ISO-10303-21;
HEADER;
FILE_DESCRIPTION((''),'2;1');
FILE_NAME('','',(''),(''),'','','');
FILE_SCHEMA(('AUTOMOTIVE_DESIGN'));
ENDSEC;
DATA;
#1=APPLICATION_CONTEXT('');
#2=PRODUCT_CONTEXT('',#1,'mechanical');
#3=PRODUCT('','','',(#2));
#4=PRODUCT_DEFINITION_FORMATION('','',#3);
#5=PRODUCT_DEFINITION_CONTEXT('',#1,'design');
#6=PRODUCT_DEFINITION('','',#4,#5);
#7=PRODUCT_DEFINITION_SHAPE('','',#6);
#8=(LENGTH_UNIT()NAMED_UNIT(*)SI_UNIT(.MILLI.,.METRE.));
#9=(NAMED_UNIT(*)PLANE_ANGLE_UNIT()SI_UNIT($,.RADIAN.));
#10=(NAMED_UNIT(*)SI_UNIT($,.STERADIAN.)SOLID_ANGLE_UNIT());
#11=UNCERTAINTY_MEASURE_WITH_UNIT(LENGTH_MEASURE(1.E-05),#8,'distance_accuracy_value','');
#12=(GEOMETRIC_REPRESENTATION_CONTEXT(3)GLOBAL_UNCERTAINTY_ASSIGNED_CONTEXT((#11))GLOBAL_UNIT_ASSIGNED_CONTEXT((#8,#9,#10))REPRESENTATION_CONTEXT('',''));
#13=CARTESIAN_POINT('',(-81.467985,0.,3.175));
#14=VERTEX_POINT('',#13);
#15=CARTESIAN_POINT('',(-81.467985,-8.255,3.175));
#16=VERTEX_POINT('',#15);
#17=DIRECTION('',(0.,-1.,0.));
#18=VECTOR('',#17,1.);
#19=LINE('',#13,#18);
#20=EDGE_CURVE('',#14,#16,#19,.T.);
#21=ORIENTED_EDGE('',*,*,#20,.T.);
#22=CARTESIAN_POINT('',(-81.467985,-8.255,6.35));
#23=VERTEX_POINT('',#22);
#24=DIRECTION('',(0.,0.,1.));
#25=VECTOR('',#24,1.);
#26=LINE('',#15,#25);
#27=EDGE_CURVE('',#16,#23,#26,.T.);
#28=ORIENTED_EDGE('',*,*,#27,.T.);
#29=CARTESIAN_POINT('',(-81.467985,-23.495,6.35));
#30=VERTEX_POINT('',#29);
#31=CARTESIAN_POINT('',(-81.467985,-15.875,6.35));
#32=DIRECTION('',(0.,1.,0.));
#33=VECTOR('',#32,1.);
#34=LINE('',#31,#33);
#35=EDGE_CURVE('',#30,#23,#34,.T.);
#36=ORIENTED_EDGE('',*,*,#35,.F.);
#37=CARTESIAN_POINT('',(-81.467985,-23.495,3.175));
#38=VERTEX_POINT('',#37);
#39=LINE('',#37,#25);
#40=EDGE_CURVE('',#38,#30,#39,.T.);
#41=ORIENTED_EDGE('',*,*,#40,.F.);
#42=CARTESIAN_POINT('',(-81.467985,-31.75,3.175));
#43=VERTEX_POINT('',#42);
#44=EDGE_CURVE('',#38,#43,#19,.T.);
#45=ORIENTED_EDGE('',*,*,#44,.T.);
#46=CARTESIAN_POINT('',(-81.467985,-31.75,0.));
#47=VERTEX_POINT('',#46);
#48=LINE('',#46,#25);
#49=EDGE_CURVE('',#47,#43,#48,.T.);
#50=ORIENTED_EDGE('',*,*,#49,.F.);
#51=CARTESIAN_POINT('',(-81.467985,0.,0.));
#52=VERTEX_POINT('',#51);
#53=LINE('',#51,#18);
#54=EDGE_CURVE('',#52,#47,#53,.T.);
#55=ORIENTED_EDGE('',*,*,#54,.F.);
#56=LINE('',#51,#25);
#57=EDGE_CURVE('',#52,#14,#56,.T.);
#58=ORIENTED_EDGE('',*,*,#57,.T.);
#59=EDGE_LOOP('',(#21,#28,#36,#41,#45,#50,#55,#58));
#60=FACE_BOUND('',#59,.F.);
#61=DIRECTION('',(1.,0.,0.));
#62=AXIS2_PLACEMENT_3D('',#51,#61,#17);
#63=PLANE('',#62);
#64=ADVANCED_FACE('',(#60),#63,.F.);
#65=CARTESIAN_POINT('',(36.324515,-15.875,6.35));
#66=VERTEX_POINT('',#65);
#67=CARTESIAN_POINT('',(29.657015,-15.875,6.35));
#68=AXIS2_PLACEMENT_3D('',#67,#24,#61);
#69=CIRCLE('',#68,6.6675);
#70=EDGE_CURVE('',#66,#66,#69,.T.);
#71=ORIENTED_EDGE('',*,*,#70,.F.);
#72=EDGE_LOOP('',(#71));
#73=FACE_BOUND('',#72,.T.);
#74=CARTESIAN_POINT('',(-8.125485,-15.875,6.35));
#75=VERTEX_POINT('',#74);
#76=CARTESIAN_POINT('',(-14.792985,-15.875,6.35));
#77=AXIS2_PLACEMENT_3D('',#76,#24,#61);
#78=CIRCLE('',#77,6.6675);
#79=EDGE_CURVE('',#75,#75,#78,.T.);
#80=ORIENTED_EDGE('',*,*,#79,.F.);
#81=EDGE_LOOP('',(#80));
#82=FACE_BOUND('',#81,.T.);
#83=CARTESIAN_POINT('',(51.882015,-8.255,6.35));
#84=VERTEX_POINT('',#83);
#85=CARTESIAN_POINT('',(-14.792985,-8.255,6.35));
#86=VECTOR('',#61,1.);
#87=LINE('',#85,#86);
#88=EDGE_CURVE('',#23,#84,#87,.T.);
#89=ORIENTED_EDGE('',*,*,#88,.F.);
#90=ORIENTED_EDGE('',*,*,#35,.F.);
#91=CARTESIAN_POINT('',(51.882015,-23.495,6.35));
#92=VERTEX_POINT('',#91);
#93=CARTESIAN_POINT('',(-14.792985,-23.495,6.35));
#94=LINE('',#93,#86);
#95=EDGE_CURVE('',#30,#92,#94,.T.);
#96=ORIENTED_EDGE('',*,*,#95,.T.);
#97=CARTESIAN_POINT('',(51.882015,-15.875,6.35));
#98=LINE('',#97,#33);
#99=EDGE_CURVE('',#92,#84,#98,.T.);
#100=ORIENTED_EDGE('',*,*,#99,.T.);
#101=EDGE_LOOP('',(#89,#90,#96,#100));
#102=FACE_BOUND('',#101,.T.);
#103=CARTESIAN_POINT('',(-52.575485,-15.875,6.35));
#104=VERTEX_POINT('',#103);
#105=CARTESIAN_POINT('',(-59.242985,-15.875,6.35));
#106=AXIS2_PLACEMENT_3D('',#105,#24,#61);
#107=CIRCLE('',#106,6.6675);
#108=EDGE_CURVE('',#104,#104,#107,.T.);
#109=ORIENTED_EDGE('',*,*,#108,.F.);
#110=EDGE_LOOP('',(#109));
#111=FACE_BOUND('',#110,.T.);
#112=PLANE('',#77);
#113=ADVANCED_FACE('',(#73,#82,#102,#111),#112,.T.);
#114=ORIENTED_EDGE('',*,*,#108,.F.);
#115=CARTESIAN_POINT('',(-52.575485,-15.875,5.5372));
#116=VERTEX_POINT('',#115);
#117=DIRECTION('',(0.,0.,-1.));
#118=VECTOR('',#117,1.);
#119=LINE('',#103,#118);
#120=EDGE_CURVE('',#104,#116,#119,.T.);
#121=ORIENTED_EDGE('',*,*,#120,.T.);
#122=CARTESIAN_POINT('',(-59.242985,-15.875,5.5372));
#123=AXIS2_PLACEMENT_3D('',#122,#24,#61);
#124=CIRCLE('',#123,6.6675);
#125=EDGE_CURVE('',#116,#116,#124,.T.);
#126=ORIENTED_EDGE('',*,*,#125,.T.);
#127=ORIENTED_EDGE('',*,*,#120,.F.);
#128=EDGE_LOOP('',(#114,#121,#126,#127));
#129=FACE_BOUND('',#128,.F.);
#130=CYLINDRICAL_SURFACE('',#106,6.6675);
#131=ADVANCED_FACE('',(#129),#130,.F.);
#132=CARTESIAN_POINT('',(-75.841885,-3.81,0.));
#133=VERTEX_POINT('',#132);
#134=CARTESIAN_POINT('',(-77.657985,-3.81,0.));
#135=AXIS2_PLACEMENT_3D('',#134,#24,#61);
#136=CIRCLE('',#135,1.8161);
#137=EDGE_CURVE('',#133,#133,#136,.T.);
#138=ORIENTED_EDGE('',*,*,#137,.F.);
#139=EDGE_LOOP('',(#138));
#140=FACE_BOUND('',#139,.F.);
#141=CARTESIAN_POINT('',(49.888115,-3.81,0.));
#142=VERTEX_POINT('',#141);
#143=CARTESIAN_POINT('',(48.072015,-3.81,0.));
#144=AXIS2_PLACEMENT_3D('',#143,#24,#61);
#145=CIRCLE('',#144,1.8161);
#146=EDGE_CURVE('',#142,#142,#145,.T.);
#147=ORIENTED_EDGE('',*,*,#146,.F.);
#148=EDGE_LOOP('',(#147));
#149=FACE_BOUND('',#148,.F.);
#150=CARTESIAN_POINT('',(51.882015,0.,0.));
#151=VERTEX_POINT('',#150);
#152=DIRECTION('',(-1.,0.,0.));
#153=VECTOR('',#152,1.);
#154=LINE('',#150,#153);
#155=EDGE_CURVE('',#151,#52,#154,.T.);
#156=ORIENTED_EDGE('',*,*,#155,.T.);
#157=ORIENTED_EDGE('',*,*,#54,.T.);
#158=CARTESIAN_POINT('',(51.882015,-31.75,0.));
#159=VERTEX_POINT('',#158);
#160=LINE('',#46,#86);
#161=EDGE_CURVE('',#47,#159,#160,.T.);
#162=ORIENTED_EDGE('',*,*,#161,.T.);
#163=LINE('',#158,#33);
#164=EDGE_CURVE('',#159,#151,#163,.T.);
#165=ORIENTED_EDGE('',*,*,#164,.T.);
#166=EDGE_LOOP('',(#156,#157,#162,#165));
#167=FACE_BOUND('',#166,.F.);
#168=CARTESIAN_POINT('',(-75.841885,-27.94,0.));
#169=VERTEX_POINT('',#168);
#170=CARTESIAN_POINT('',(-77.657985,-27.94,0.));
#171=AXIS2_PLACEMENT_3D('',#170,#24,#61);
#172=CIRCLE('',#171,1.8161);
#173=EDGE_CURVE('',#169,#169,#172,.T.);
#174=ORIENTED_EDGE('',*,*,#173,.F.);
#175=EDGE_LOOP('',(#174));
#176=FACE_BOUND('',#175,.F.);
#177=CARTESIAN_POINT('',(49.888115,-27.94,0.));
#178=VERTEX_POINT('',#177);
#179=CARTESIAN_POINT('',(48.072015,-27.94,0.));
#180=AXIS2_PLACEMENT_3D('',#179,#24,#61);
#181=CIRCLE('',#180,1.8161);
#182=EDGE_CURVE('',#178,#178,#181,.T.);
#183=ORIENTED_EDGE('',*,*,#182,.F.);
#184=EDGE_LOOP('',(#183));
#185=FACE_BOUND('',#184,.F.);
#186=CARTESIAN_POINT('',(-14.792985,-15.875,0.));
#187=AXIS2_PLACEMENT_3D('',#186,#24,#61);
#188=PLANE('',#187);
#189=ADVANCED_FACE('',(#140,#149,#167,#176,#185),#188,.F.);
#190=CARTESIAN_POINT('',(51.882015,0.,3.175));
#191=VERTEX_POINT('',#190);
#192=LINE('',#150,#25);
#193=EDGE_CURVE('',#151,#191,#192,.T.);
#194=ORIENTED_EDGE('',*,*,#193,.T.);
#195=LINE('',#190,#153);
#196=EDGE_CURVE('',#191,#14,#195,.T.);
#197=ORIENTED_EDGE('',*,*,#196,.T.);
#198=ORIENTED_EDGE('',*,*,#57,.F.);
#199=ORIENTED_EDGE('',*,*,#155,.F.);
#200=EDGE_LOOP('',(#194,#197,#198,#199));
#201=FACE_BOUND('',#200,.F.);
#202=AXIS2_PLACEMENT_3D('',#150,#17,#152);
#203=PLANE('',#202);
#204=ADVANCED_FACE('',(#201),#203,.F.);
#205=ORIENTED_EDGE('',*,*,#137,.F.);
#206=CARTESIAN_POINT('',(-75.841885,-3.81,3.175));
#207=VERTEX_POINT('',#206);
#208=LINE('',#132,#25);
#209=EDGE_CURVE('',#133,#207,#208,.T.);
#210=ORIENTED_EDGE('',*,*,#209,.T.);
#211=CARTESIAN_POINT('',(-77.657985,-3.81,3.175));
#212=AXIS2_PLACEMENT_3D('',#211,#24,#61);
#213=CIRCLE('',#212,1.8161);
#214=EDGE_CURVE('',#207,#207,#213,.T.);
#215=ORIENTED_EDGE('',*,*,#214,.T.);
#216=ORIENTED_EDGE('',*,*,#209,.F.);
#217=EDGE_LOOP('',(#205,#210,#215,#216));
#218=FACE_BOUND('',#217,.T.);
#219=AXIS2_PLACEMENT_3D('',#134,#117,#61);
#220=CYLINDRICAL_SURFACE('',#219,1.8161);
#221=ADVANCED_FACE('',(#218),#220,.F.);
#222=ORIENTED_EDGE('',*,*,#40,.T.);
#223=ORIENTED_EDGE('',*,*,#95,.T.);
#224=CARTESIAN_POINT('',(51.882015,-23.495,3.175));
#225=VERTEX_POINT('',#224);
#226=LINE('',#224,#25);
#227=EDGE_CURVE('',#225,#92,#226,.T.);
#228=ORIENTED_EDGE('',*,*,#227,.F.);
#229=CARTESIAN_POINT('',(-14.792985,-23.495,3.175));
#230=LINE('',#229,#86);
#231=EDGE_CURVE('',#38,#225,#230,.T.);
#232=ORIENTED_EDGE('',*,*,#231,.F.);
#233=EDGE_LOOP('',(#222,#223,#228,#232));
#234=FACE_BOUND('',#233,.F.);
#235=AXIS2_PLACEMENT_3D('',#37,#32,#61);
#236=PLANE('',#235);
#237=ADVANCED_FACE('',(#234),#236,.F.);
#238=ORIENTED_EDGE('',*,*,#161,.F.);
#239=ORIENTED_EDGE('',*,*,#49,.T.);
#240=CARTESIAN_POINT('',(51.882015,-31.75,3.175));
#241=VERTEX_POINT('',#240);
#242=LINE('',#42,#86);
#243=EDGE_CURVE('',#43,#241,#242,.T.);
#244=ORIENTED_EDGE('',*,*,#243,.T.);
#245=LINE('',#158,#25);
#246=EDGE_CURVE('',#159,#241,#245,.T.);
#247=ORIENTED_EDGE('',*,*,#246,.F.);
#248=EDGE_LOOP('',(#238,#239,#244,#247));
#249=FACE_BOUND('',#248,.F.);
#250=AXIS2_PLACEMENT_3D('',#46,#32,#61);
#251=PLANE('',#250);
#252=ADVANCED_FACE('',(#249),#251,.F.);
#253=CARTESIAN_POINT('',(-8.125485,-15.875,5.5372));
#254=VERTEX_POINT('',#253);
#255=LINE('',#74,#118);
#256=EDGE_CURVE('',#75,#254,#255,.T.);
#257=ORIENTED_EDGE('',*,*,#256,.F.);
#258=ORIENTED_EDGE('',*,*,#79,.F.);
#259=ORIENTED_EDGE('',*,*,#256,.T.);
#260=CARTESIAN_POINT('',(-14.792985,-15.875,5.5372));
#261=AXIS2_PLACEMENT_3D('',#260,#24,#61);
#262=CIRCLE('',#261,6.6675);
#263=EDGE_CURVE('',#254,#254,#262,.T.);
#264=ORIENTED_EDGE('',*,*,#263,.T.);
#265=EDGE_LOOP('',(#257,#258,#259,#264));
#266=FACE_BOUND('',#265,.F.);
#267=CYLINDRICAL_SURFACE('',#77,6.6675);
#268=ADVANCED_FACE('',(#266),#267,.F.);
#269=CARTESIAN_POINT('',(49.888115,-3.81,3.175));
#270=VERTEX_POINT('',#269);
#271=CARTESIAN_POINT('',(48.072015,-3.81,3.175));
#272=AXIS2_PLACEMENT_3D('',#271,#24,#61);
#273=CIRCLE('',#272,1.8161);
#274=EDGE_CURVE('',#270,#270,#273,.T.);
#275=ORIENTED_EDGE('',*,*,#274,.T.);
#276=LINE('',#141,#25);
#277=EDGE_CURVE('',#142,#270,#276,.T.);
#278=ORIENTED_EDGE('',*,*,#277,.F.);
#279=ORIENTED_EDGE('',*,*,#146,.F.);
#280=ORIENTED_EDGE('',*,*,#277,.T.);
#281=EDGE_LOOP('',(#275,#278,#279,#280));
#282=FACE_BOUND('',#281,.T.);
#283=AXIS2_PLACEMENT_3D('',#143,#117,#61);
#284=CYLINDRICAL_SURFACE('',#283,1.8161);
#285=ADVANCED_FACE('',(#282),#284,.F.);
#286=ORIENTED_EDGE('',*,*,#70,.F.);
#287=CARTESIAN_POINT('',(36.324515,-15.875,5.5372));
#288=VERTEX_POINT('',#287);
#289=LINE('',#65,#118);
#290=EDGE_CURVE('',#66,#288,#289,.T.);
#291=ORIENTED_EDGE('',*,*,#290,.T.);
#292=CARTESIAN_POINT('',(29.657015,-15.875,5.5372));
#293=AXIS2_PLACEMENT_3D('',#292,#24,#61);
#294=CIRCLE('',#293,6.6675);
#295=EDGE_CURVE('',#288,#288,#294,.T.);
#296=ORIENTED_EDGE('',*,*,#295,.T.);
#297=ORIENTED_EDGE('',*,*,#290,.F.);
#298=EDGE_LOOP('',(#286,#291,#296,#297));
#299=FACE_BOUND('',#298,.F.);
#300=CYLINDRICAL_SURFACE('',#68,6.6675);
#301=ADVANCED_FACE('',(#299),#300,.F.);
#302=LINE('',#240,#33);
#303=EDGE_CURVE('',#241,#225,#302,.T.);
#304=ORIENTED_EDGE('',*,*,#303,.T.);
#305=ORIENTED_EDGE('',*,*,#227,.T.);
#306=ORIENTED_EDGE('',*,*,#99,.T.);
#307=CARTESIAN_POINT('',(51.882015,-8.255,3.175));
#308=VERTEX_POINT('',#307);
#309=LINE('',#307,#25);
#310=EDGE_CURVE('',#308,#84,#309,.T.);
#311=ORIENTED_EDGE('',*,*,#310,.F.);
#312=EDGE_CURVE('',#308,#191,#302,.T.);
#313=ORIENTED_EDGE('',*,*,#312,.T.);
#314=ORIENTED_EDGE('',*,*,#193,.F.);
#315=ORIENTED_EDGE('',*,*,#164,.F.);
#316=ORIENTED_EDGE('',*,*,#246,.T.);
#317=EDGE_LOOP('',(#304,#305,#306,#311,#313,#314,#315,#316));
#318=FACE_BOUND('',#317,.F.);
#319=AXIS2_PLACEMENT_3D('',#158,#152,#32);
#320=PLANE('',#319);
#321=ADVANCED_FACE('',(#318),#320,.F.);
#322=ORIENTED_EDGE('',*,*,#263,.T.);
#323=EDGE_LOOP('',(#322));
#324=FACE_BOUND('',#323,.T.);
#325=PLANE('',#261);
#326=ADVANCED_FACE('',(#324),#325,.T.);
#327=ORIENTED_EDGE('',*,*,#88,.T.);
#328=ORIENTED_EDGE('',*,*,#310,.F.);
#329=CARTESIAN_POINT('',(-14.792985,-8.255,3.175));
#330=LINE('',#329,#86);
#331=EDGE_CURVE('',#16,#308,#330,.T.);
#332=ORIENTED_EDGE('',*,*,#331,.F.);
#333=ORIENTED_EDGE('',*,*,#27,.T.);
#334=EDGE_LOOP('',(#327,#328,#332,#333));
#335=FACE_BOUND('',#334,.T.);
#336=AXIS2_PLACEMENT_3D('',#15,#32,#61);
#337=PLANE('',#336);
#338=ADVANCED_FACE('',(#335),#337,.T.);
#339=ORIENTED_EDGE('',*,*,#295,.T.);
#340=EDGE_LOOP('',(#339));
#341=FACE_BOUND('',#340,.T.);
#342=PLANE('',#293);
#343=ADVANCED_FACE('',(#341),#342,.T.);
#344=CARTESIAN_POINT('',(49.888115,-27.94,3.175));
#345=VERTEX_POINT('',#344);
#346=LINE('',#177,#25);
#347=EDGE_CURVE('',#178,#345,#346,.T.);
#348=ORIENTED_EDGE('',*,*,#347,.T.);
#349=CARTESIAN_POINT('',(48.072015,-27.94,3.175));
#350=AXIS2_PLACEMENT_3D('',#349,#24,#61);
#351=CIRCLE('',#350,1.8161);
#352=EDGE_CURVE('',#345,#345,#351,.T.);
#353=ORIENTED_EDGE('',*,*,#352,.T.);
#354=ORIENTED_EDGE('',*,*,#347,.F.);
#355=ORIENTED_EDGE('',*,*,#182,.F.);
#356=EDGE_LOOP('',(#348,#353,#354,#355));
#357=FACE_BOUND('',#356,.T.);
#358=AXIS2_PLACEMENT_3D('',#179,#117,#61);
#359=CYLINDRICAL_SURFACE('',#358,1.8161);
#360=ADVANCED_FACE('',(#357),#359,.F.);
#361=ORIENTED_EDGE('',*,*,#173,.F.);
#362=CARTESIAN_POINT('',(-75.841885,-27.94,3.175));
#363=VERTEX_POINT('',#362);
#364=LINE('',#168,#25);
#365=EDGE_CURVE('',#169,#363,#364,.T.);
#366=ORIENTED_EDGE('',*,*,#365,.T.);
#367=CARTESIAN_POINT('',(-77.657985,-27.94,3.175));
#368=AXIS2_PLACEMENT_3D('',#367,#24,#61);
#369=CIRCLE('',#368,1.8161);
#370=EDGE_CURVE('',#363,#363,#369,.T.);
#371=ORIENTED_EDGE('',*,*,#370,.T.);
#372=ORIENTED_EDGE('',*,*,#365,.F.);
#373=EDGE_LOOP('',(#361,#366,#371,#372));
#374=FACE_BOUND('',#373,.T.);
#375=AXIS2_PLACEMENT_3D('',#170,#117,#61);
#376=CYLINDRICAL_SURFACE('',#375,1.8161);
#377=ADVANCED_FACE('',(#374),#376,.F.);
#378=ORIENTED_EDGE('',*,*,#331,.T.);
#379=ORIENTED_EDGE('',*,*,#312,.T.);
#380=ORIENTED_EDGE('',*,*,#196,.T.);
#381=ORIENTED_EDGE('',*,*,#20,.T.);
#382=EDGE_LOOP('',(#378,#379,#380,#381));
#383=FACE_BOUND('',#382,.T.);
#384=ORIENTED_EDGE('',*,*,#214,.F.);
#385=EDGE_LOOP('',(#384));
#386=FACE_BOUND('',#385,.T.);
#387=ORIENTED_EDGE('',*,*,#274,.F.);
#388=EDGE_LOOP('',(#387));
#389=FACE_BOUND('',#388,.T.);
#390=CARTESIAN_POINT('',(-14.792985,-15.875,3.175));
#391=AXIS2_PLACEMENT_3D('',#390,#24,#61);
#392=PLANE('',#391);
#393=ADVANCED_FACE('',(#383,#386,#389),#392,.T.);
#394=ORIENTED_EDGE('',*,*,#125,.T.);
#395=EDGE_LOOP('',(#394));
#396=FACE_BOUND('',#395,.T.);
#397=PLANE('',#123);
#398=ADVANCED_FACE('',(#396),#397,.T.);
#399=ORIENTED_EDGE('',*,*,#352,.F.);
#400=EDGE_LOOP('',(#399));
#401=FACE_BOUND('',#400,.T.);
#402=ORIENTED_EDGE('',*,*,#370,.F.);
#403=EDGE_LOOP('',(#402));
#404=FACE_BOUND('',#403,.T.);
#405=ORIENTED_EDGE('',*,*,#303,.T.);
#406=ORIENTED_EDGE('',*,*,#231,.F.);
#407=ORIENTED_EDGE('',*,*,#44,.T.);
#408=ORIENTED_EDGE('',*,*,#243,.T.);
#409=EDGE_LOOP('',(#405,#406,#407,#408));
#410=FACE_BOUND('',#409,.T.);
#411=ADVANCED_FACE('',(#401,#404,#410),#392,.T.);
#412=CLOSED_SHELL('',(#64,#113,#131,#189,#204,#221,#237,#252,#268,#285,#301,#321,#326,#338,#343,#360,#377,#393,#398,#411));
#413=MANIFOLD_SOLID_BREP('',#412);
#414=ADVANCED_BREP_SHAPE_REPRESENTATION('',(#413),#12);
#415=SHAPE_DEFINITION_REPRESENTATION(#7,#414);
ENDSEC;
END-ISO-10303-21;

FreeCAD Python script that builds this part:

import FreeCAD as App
import Part
import Sketcher

V = App.Vector
Q = App.Units.Quantity


def add_polygon(sketch, points):
    """Adds a closed chain of lines whose ends are joined by coincident constraints."""
    first, n = sketch.GeometryCount, len(points)
    for a, b in zip(points, points[1:] + points[:1]):
        sketch.addGeometry(Part.LineSegment(App.Vector(*a, 0), App.Vector(*b, 0)), False)
    for i in range(n):
        sketch.addConstraint(Sketcher.Constraint("Coincident", first + i, 2, first + (i + 1) % n, 1))

doc = App.newDocument("Part")
body = doc.addObject("PartDesign::Body", "Body")

# Sketch on XY plane
sketch1 = body.newObject("Sketcher::SketchObject", "Sketch")
sketch1.AttachmentSupport = (doc.getObject("XY_Plane"), [""])
sketch1.MapMode = "FlatFace"
add_polygon(sketch1, [(51.9, 0), (-81.5, 0), (-81.5, -31.8), (51.9, -31.8)])  # lines 0-3
sketch1.addGeometry(Part.Circle(V(-77.7, -27.9, 0), V(0, 0, 1), 1.8), False)  # 4
sketch1.addGeometry(Part.Circle(V(48.1, -27.9, 0), V(0, 0, 1), 1.8), False)  # 5
sketch1.addGeometry(Part.Circle(V(-77.7, -3.8, 0), V(0, 0, 1), 1.8), False)  # 6
sketch1.addGeometry(Part.Circle(V(48.1, -3.8, 0), V(0, 0, 1), 1.8), False)  # 7
sketch1.addConstraint([
    Sketcher.Constraint("Horizontal", 0),
    Sketcher.Constraint("Vertical", 1),
    Sketcher.Constraint("Horizontal", 2),
    Sketcher.Constraint("Vertical", 3),
    Sketcher.Constraint("Equal", 4, 5),
    Sketcher.Constraint("Equal", 5, 6),
    Sketcher.Constraint("Equal", 6, 7),
    Sketcher.Constraint("PointOnObject", 0, 2, -1),
    Sketcher.Constraint("Horizontal", 4, 3, 5, 3),
    Sketcher.Constraint("Horizontal", 6, 3, 7, 3),
    Sketcher.Constraint("Vertical", 4, 3, 6, 3),
    Sketcher.Constraint("Vertical", 5, 3, 7, 3),
    Sketcher.Constraint("Diameter", 4, Q("0.143 in")),
    Sketcher.Constraint("DistanceX", 0, 2, 0, 1, Q("5.25 in")),
    Sketcher.Constraint("DistanceY", 1, 2, 1, 1, Q("1.25 in")),
    Sketcher.Constraint("DistanceY", 4, 3, -1, 1, Q("1.1 in")),
    Sketcher.Constraint("DistanceX", 0, 2, 7, 3, Q("5.1 in")),
    Sketcher.Constraint("DistanceY", 1, 2, 6, 3, Q("1.1 in")),
    Sketcher.Constraint("DistanceX", 4, 3, 2, 2, Q("5.1 in")),
    Sketcher.Constraint("DistanceX", 4, 3, -1, 1, 77.657985),
])
pad1 = body.newObject("PartDesign::Pad", "Pad")
pad1.Profile = sketch1
pad1.Length = Q("0.125 in")

# Sketch on XY plane
sketch2 = body.newObject("Sketcher::SketchObject", "Sketch001")
sketch2.AttachmentSupport = (doc.getObject("XY_Plane"), [""])
sketch2.MapMode = "FlatFace"
sketch2.AttachmentOffset = App.Placement(V(0, 0, 0.125 * 25.4), App.Rotation())
add_polygon(sketch2, [(-81, -8), (-81, -23), (52, -23), (52, -8)])  # lines 0-3
sketch2.addConstraint([
    Sketcher.Constraint("Vertical", 0),
    Sketcher.Constraint("Horizontal", 1),
    Sketcher.Constraint("Vertical", 2),
    Sketcher.Constraint("Horizontal", 3),
    Sketcher.Constraint("DistanceY", 0, 2, 0, 1, Q("0.6 in")),
    Sketcher.Constraint("DistanceX", 1, 1, 1, 2, Q("5.25 in")),
    Sketcher.Constraint("DistanceY", 0, 2, -1, 1, Q("0.925 in")),
    Sketcher.Constraint("DistanceX", 0, 2, -1, 1, 81.467985),
])
pad2 = body.newObject("PartDesign::Pad", "Pad001")
pad2.Profile = sketch2
pad2.Length = Q("0.125 in")

# Sketch on XY plane
sketch3 = body.newObject("Sketcher::SketchObject", "Sketch002")
sketch3.AttachmentSupport = (doc.getObject("XY_Plane"), [""])
sketch3.MapMode = "FlatFace"
sketch3.AttachmentOffset = App.Placement(V(0, 0, 0.25 * 25.4), App.Rotation())
sketch3.addGeometry([
    Part.Circle(V(-59, -16, 0), V(0, 0, 1), 7),
    Part.Circle(V(-15, -16, 0), V(0, 0, 1), 7),
    Part.Circle(V(30, -16, 0), V(0, 0, 1), 7),
], False)
sketch3.addConstraint([
    Sketcher.Constraint("Equal", 0, 1),
    Sketcher.Constraint("Equal", 1, 2),
    Sketcher.Constraint("Horizontal", 0, 3, 1, 3),
    Sketcher.Constraint("Horizontal", 1, 3, 2, 3),
    Sketcher.Constraint("Diameter", 0, Q("0.525 in")),
    Sketcher.Constraint("DistanceX", 0, 3, 2, 3, Q("3.5 in")),
    Sketcher.Constraint("DistanceX", 0, 3, 1, 3, Q("1.75 in")),
    Sketcher.Constraint("DistanceY", 0, 3, -1, 1, Q("0.625 in")),
    Sketcher.Constraint("DistanceX", 0, 3, -1, 1, 59.242985),
])
pocket1 = body.newObject("PartDesign::Pocket", "Pocket")
pocket1.Profile = sketch3
pocket1.Length = Q("0.032 in")

doc.recompute()
